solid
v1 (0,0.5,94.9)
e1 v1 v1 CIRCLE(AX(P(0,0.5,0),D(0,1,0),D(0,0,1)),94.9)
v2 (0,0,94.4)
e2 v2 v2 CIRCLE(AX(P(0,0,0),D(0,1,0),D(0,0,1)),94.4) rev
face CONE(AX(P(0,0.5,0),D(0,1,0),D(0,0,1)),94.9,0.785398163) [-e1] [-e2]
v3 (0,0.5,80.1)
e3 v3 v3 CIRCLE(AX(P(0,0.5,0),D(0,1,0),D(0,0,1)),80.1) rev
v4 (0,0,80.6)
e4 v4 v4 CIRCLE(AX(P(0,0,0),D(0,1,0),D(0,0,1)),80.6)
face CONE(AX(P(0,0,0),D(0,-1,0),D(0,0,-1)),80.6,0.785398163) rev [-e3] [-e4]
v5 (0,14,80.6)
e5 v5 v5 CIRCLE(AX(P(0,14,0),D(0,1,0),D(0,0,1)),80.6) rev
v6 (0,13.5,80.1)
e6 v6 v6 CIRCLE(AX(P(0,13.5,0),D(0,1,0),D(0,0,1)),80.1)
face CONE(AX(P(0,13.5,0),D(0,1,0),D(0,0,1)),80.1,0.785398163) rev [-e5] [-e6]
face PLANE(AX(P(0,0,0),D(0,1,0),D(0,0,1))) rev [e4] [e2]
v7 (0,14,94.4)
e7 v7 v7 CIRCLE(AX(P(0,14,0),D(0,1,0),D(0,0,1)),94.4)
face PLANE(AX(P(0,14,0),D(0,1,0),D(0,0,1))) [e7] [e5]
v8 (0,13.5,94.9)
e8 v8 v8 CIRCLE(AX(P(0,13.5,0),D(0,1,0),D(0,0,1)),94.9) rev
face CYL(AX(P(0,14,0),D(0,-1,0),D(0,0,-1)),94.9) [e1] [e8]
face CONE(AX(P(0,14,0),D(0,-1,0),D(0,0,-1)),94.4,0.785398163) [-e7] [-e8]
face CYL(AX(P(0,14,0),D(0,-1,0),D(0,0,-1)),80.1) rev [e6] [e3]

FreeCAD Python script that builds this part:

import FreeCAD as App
import Part
import Sketcher
from FreeCAD import Vector
Q = App.Units.Quantity


def edges_at(feature, points):
    """Names of the edges that pass closest to the given points."""
    edges = feature.Shape.Edges
    near = lambda p: min(range(len(edges)), key=lambda i: edges[i].distToShape(Part.Vertex(*p))[0])
    return sorted({f"Edge{near(p) + 1}" for p in points})

doc = App.newDocument("Part")
body = doc.addObject("PartDesign::Body", "Body")

# Sketch on XZ plane
sketch1 = doc.addObject("Sketcher::SketchObject", "Sketch")
body.addObject(sketch1)
sketch1.AttachmentSupport = (doc.XZ_Plane, [""])
sketch1.MapMode = "FlatFace"
sketch1.addGeometry([
    Part.Circle(Vector(0, 0, 0), Vector(0, 0, 1), 95),
    Part.Circle(Vector(0, 0, 0), Vector(0, 0, 1), 80),
], False)
sketch1.addConstraint([
    Sketcher.Constraint("Coincident", 0, 3, -1, 1),
    Sketcher.Constraint("Coincident", 1, 3, -1, 1),
    Sketcher.Constraint("Diameter", 0, Q("189.8 mm")),
    Sketcher.Constraint("Diameter", 1, Q("160.2 mm")),
])
pad1 = doc.addObject("PartDesign::Pad", "Pad")
body.addObject(pad1)
pad1.Profile = sketch1
pad1.Length = 14
pad1.Reversed = True
doc.recompute()

chamfer = doc.addObject("PartDesign::Chamfer", "Chamfer")
body.addObject(chamfer)
chamfer.Base = (pad1, edges_at(pad1, [
    (0, 0, -94.9),
    (0, 14, -94.9),
    (0, 0, -80.1),
    (0, 14, -80.1),
]))
chamfer.Size = 0.5

doc.recompute()
